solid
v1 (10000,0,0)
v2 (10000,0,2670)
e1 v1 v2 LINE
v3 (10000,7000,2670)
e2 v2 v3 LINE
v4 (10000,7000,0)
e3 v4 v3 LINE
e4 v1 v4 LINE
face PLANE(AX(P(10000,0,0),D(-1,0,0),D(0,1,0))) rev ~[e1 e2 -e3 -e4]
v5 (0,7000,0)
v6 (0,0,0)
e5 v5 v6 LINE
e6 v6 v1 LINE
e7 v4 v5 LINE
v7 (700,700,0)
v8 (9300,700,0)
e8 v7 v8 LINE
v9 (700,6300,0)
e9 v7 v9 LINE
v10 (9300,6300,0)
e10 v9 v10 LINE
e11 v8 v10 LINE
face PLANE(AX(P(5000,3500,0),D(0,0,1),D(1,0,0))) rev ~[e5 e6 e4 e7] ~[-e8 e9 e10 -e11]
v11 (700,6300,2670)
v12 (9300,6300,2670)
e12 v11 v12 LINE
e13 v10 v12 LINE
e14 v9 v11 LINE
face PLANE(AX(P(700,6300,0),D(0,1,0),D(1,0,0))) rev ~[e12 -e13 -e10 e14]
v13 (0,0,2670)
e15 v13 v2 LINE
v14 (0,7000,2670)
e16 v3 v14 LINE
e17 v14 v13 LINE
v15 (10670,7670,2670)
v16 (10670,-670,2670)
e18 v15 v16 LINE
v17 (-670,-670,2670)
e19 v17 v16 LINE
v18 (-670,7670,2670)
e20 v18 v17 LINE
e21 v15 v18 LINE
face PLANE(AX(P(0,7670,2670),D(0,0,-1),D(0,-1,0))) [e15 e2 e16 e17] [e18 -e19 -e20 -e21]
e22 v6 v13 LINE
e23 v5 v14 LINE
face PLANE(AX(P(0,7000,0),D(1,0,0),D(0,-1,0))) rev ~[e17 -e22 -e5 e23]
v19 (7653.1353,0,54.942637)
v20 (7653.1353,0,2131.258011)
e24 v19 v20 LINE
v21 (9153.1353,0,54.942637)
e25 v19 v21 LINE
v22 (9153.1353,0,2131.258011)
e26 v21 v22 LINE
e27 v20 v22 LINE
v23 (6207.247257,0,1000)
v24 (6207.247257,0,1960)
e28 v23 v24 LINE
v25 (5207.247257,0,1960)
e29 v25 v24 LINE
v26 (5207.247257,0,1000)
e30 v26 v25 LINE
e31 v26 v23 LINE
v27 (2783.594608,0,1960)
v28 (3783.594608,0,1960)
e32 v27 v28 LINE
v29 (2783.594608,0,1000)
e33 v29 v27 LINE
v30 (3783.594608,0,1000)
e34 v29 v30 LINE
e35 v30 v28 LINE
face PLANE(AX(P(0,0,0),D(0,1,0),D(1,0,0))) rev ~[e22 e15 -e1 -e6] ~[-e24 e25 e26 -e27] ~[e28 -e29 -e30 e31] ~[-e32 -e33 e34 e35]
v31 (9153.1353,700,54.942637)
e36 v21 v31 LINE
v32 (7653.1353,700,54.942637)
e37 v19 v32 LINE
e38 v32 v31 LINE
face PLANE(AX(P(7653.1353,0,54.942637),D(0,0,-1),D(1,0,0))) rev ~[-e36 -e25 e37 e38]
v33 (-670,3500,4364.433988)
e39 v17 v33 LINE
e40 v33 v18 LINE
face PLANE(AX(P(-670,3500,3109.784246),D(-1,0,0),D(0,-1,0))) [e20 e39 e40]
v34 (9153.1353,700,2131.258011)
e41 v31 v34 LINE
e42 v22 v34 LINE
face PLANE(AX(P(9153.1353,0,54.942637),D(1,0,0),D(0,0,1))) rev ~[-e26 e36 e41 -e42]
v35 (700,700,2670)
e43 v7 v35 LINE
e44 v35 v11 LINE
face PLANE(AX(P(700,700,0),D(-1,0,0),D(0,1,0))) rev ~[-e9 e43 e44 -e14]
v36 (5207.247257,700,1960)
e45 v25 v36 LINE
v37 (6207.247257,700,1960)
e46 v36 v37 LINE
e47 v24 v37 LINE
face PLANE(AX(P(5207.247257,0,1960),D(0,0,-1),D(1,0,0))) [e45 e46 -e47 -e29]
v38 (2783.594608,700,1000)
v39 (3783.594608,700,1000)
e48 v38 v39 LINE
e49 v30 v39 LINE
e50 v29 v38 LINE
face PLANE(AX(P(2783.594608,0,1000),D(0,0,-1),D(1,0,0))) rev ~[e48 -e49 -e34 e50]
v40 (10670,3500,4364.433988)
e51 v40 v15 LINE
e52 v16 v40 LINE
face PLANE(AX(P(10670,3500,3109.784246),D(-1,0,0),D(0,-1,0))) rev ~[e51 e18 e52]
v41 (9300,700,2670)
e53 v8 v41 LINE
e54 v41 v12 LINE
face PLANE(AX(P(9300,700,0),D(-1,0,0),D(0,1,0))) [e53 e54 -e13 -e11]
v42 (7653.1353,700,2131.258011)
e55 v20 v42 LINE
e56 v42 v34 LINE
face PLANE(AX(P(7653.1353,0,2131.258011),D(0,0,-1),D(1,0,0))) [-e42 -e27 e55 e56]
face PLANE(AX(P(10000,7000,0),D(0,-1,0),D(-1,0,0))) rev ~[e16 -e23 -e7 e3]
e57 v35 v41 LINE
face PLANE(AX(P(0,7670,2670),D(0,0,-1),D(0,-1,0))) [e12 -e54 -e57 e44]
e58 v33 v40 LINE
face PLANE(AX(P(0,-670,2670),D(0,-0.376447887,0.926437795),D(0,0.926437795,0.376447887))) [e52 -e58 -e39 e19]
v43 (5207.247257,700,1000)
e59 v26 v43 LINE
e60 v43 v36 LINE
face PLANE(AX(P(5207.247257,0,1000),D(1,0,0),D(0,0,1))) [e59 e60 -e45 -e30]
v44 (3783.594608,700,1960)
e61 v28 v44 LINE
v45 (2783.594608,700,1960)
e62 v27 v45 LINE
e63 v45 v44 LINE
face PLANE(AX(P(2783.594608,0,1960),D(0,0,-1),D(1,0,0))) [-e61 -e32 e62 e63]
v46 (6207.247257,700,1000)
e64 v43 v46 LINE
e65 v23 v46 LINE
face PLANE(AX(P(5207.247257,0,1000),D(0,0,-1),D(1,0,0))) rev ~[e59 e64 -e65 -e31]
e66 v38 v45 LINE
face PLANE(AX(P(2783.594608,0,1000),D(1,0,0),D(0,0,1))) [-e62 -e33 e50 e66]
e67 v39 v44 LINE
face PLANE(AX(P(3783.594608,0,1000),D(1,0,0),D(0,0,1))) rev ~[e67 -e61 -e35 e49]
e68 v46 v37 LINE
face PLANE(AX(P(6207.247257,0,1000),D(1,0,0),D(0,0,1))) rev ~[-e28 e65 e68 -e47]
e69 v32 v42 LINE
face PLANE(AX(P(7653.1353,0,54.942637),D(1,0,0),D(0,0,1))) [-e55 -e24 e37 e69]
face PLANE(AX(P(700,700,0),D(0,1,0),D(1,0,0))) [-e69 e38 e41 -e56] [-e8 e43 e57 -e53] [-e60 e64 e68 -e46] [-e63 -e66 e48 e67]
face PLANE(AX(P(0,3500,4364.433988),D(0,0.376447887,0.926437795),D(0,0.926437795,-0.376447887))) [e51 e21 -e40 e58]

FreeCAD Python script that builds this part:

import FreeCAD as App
import Part
import Sketcher
from FreeCAD import Vector


def add_polygon(sketch, points):
    """Adds a closed chain of lines whose ends are joined by coincident constraints."""
    first, n = sketch.GeometryCount, len(points)
    for a, b in zip(points, points[1:] + points[:1]):
        sketch.addGeometry(Part.LineSegment(App.Vector(*a, 0), App.Vector(*b, 0)), False)
    for i in range(n):
        sketch.addConstraint(Sketcher.Constraint("Coincident", first + i, 2, first + (i + 1) % n, 1))

doc = App.newDocument("Part")
body = doc.addObject("PartDesign::Body", "Body")

# Sketch on XY plane
sketch1 = body.newObject("Sketcher::SketchObject", "Sketch")
sketch1.AttachmentSupport = (doc.getObject("XY_Plane"), [""])
sketch1.MapMode = "FlatFace"
add_polygon(sketch1, [(0, 7000), (0, 0), (10000, 0), (10000, 7000)])  # lines 0-3
add_polygon(sketch1, [(9300, 700), (700, 700), (700, 6300), (9300, 6300)])  # lines 4-7
sketch1.addConstraint([
    Sketcher.Constraint("Vertical", 0),
    Sketcher.Constraint("Horizontal", 1),
    Sketcher.Constraint("Vertical", 2),
    Sketcher.Constraint("Horizontal", 3),
    Sketcher.Constraint("Horizontal", 4),
    Sketcher.Constraint("Vertical", 5),
    Sketcher.Constraint("Horizontal", 6),
    Sketcher.Constraint("Vertical", 7),
    Sketcher.Constraint("Coincident", 0, 2, -1, 1),
    Sketcher.Constraint("DistanceX", 1, 1, 1, 2, 10000.0),
    Sketcher.Constraint("DistanceX", 4, 2, 4, 1, 8600.0),
    Sketcher.Constraint("DistanceY", 0, 2, 0, 1, 7000.0),
    Sketcher.Constraint("DistanceY", 5, 1, 5, 2, 5600.0),
    Sketcher.Constraint("DistanceX", -1, 1, 4, 2, 700.0),
    Sketcher.Constraint("DistanceY", -1, 1, 4, 2, 700.0),
])
pad1 = body.newObject("PartDesign::Pad", "Pad")
pad1.Profile = sketch1
pad1.Length = 2670

# Sketch on XZ plane
sketch2 = body.newObject("Sketcher::SketchObject", "Sketch001")
sketch2.AttachmentSupport = (doc.getObject("XZ_Plane"), [""])
sketch2.MapMode = "FlatFace"
add_polygon(sketch2, [(7653, 2131), (7653, 55), (9153, 55), (9153, 2131)])  # lines 0-3
add_polygon(sketch2, [(5207, 1960), (5207, 1000), (6207, 1000), (6207, 1960)])  # lines 4-7
add_polygon(sketch2, [(2784, 1960), (2784, 1000), (3784, 1000), (3784, 1960)])  # lines 8-11
sketch2.addConstraint([
    Sketcher.Constraint("Vertical", 0),
    Sketcher.Constraint("Horizontal", 1),
    Sketcher.Constraint("Vertical", 2),
    Sketcher.Constraint("Horizontal", 3),
    Sketcher.Constraint("Vertical", 4),
    Sketcher.Constraint("Horizontal", 5),
    Sketcher.Constraint("Vertical", 6),
    Sketcher.Constraint("Horizontal", 7),
    Sketcher.Constraint("Vertical", 8),
    Sketcher.Constraint("Horizontal", 9),
    Sketcher.Constraint("Vertical", 10),
    Sketcher.Constraint("Horizontal", 11),
    Sketcher.Constraint("Horizontal", 5, 2, 8, 2),
    Sketcher.Constraint("Horizontal", 7, 2, 10, 2),
    Sketcher.Constraint("Equal", 7, 9),
    Sketcher.Constraint("DistanceX", 1, 1, 1, 2, 1500.0),
    Sketcher.Constraint("DistanceX", 5, 1, 5, 2, 1000.0),
    Sketcher.Constraint("DistanceY", 4, 2, 4, 1, 960.0),
    Sketcher.Constraint("DistanceY", -1, 1, 4, 2, 1000.0),
    Sketcher.Constraint("DistanceX", -1, 1, 0, 2, 7653.1353),
    Sketcher.Constraint("DistanceY", 0, 2, 0, 1, 2076.315373),
    Sketcher.Constraint("DistanceY", -1, 1, 2, 2, 2131.258011),
    Sketcher.Constraint("DistanceX", 8, 2, 4, 2, 2423.652649),
    Sketcher.Constraint("DistanceX", -1, 1, 4, 2, 5207.247257),
])
pocket1 = body.newObject("PartDesign::Pocket", "Pocket")
pocket1.Profile = sketch2
pocket1.Length = 700

# Sketch on YZ plane
sketch3 = body.newObject("Sketcher::SketchObject", "Sketch002")
sketch3.AttachmentSupport = (doc.getObject("YZ_Plane"), [""])
sketch3.MapMode = "FlatFace"
add_polygon(sketch3, [(3500, 4364), (7670, 2670), (-670, 2670)])  # lines 0-2
sketch3.addConstraint([
    Sketcher.Constraint("Horizontal", 1),
    Sketcher.Constraint("Equal", 0, 2),
    Sketcher.Constraint("DistanceX", 1, 2, 1, 1, 8340.0),
    Sketcher.Constraint("DistanceX", -1, 1, 0, 2, 7670.0),
    Sketcher.Constraint("DistanceY", -1, 1, 0, 2, 2670.0),
    Sketcher.Constraint("Distance", 0, 4501.1117),
])
pad2 = body.newObject("PartDesign::Pad", "Pad001")
pad2.Profile = sketch3
pad2.Type = "TwoLengths"
pad2.Length = 670
pad2.Length2 = 10670
pad2.Reversed = True

doc.recompute()
